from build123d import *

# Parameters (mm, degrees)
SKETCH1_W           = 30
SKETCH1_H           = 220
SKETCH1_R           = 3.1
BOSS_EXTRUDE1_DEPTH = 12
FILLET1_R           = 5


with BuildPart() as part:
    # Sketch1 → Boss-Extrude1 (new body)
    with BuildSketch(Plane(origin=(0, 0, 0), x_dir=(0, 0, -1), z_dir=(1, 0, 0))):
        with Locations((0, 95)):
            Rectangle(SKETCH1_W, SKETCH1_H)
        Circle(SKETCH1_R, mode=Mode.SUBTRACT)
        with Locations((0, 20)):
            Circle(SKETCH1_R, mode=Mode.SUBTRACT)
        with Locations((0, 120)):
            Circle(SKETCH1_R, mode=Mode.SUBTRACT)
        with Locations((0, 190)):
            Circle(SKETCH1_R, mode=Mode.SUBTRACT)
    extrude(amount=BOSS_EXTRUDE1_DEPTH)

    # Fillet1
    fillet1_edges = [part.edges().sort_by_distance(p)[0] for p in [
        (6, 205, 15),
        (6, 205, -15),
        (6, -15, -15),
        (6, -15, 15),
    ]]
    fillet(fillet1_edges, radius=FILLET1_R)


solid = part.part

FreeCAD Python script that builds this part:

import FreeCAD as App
import Part
import Sketcher

V = App.Vector
Q = App.Units.Quantity


def edges_at(feature, points):
    """Names of the edges that pass closest to the given points."""
    edges = feature.Shape.Edges
    near = lambda p: min(range(len(edges)), key=lambda i: edges[i].distToShape(Part.Vertex(*p))[0])
    return sorted({f"Edge{near(p) + 1}" for p in points})

doc = App.newDocument("Part")
body = doc.addObject("PartDesign::Body", "Body")

sketch1 = body.newObject("Sketcher::SketchObject", "Sketch")
sketch1.AttachmentSupport = (doc.getObject("YZ_Plane"), [""])
sketch1.MapMode = "FlatFace"
sketch1.addGeometry([
    Part.LineSegment(V(205, 15, 0), V(-15, 15, 0)),
    Part.LineSegment(V(-15, 15, 0), V(-15, -15, 0)),
    Part.LineSegment(V(-15, -15, 0), V(205, -15, 0)),
    Part.LineSegment(V(205, -15, 0), V(205, 15, 0)),
    Part.Circle(V(0, 0, 0), V(0, 0, 1), 3.1),
    Part.Circle(V(20, 0, 0), V(0, 0, 1), 3.1),
    Part.Circle(V(120, 0, 0), V(0, 0, 1), 3.1),
    Part.Circle(V(190, 0, 0), V(0, 0, 1), 3.1),
], False)
sketch1.addConstraint([
    Sketcher.Constraint("Coincident", 0, 2, 1, 1),
    Sketcher.Constraint("Coincident", 1, 2, 2, 1),
    Sketcher.Constraint("Coincident", 2, 2, 3, 1),
    Sketcher.Constraint("Coincident", 3, 2, 0, 1),
    Sketcher.Constraint("Horizontal", 0),
    Sketcher.Constraint("Vertical", 1),
    Sketcher.Constraint("Horizontal", 2),
    Sketcher.Constraint("Vertical", 3),
    Sketcher.Constraint("Coincident", 4, 3, -1, 1),
    Sketcher.Constraint("Equal", 4, 5),
    Sketcher.Constraint("Equal", 5, 6),
    Sketcher.Constraint("Equal", 6, 7),
    Sketcher.Constraint("PointOnObject", 5, 3, -1),
    Sketcher.Constraint("PointOnObject", 6, 3, -1),
    Sketcher.Constraint("PointOnObject", 7, 3, -1),
    Sketcher.Constraint("Diameter", 4, Q("6.2 mm")),
    Sketcher.Constraint("DistanceX", 0, 2, 0, 1, Q("220 mm")),
    Sketcher.Constraint("DistanceY", 1, 2, 1, 1, Q("30 mm")),
    Sketcher.Constraint("DistanceX", -1, 1, 5, 3, Q("20 mm")),
    Sketcher.Constraint("DistanceX", -1, 1, 6, 3, Q("120 mm")),
    Sketcher.Constraint("DistanceX", -1, 1, 7, 3, Q("190 mm")),
    Sketcher.Constraint("DistanceX", 0, 2, -1, 1, Q("15 mm")),
    Sketcher.Constraint("DistanceY", -1, 1, 0, 2, Q("15 mm")),
])
pad1 = body.newObject("PartDesign::Pad", "Pad")
pad1.Profile = sketch1
pad1.Length = 12
doc.recompute()

fillet = body.newObject("PartDesign::Fillet", "Fillet")
fillet.Base = (pad1, edges_at(pad1, [
    (6, 205, 15),
    (6, 205, -15),
    (6, -15, -15),
    (6, -15, 15),
]))
fillet.Radius = 5

doc.recompute()
